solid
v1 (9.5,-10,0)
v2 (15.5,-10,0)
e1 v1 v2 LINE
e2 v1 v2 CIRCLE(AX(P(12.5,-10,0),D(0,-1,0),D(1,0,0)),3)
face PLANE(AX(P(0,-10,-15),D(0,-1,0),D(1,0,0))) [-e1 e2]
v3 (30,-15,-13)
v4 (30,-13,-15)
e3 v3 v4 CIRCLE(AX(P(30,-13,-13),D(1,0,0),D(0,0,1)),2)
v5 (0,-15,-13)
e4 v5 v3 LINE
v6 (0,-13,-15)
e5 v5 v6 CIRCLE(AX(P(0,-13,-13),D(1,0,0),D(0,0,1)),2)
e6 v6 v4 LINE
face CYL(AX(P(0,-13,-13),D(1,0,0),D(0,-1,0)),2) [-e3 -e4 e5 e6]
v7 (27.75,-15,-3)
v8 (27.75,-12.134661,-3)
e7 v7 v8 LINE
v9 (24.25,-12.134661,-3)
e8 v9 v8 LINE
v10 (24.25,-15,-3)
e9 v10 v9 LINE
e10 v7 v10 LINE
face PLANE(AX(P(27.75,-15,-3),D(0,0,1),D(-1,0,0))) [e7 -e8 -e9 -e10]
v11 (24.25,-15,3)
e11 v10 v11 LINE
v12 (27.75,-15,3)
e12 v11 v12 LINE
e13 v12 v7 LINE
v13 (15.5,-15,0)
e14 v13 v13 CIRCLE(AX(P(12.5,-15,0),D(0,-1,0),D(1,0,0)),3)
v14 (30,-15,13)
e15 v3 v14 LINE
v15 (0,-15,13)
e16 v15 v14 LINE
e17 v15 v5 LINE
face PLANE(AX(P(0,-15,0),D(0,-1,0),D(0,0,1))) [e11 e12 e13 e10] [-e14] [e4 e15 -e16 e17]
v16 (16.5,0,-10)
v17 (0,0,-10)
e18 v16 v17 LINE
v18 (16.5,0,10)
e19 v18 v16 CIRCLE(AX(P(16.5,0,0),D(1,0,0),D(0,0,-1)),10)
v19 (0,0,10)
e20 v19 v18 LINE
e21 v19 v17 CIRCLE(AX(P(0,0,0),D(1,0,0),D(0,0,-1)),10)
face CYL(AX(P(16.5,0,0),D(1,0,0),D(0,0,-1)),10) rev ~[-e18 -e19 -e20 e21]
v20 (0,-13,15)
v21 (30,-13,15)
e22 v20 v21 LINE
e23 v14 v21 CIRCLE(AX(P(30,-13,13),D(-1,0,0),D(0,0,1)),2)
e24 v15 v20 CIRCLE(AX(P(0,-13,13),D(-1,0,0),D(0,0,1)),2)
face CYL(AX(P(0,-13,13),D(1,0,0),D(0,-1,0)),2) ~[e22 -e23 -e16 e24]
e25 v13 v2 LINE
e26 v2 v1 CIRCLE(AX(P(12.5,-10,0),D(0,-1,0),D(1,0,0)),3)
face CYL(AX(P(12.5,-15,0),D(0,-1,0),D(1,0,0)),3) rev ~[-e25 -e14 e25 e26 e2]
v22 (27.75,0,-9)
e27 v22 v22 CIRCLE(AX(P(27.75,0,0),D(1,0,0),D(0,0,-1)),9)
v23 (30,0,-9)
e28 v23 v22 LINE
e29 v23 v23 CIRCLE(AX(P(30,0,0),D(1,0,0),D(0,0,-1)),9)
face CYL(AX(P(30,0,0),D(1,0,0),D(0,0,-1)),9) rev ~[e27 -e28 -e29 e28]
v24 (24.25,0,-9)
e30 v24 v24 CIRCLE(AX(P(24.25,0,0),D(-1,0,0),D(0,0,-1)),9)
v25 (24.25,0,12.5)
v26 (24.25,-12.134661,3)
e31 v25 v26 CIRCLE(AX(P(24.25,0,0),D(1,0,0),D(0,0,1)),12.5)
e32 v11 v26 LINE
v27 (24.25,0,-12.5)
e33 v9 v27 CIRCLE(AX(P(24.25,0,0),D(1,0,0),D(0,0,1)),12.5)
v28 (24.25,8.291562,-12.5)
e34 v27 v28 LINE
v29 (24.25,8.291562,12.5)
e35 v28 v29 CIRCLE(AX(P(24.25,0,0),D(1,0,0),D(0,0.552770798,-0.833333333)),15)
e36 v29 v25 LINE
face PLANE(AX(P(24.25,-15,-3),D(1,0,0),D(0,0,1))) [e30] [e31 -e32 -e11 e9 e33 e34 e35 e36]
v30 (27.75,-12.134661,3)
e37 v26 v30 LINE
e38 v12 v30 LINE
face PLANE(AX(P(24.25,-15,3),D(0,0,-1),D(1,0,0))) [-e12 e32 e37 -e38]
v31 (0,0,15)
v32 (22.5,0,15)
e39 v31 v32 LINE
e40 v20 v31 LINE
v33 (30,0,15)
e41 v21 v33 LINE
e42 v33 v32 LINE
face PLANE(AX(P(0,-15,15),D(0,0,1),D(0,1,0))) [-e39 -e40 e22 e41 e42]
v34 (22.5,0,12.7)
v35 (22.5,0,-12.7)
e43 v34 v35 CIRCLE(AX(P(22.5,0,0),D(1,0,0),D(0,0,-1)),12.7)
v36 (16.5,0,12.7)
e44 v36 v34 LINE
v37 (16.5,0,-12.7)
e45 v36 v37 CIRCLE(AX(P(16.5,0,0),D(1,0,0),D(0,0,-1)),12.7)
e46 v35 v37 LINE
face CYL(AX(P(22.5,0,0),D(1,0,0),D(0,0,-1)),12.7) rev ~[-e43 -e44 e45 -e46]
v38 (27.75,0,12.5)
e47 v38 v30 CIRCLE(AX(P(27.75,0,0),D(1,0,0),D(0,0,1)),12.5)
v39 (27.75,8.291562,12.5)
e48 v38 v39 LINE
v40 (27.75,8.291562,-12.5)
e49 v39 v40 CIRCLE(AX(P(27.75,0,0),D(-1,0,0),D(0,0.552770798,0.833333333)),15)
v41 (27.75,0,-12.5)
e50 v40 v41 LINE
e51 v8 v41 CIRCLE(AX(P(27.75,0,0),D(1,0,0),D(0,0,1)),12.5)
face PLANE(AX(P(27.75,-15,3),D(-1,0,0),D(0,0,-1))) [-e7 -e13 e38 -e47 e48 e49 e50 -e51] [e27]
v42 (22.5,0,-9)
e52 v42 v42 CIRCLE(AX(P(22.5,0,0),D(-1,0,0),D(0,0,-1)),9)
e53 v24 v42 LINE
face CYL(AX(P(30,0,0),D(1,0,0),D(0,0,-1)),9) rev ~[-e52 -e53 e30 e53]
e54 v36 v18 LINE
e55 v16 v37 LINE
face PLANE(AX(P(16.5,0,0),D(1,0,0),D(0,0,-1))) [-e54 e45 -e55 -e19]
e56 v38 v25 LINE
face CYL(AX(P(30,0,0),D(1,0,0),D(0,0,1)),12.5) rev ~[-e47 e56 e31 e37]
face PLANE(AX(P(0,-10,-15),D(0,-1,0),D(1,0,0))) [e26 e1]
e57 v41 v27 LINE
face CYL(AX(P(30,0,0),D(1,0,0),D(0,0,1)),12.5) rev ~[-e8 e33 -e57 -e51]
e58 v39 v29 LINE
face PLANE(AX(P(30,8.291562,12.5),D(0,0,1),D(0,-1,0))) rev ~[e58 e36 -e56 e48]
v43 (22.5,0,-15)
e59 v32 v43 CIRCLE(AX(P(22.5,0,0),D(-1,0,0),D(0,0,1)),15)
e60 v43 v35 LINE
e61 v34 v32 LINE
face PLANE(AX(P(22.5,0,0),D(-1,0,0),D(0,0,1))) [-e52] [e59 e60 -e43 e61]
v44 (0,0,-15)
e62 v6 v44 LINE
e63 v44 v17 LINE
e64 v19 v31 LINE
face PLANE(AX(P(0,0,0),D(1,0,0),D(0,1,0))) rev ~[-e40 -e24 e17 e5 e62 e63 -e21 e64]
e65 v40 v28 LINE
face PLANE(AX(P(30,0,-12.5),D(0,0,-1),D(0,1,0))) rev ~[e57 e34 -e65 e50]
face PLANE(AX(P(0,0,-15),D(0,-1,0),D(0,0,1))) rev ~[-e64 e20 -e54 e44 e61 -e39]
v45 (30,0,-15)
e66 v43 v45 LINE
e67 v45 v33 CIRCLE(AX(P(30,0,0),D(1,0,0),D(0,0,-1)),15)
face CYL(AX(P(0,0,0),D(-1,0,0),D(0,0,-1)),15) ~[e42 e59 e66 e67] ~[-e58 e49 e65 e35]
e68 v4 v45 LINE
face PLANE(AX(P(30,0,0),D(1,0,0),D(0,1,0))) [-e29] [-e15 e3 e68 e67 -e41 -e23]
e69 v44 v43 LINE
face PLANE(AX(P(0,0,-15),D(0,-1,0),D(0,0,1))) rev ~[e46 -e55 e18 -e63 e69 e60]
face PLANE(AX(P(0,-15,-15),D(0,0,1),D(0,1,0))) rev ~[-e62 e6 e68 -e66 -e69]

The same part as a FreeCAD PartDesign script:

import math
import FreeCAD as App
import Part
import Sketcher


def edges_at(feature, points):
    """Names of the edges that pass closest to the given points."""
    edges = feature.Shape.Edges
    near = lambda p: min(range(len(edges)), key=lambda i: edges[i].distToShape(Part.Vertex(*p))[0])
    return sorted({f"Edge{near(p) + 1}" for p in points})


def add_polygon(sketch, points):
    """Adds a closed chain of lines whose ends are joined by coincident constraints."""
    first, n = sketch.GeometryCount, len(points)
    for a, b in zip(points, points[1:] + points[:1]):
        sketch.addGeometry(Part.LineSegment(App.Vector(*a, 0), App.Vector(*b, 0)), False)
    for i in range(n):
        sketch.addConstraint(Sketcher.Constraint("Coincident", first + i, 2, first + (i + 1) % n, 1))

doc = App.newDocument("Part")
body = doc.addObject("PartDesign::Body", "Body")

# Sketch on YZ plane
sketch1 = body.newObject("Sketcher::SketchObject", "Sketch")
sketch1.AttachmentSupport = (doc.getObject("YZ_Plane"), [""])
sketch1.MapMode = "FlatFace"
sketch1.addGeometry(Part.LineSegment(App.Vector(-15, 15, 0), App.Vector(-15, -15, 0)), False)
sketch1.addGeometry(Part.LineSegment(App.Vector(-15, -15, 0), App.Vector(0, -15, 0)), False)
sketch1.addGeometry(Part.ArcOfCircle(Part.Circle(App.Vector(0, 0, 0), App.Vector(0, 0, 1), 15), math.radians(-90), math.radians(90)), False)
sketch1.addGeometry(Part.LineSegment(App.Vector(0, 15, 0), App.Vector(-15, 15, 0)), False)
sketch1.addConstraint(Sketcher.Constraint("Coincident", 0, 2, 1, 1))
sketch1.addConstraint(Sketcher.Constraint("Tangent", 1, 2, 2, 1))
sketch1.addConstraint(Sketcher.Constraint("Tangent", 2, 2, 3, 1))
sketch1.addConstraint(Sketcher.Constraint("Coincident", 3, 2, 0, 1))
sketch1.addConstraint(Sketcher.Constraint("Vertical", 0))
sketch1.addConstraint(Sketcher.Constraint("Horizontal", 1))
sketch1.addConstraint(Sketcher.Constraint("Horizontal", 3))
sketch1.addConstraint(Sketcher.Constraint("Coincident", 2, 3, -1, 1))
sketch1.addConstraint(Sketcher.Constraint("Radius", 2, 15.0))
sketch1.addConstraint(Sketcher.Constraint("DistanceX", 1, 1, 1, 2, 15.0))
pad1 = body.newObject("PartDesign::Pad", "Pad")
pad1.Profile = sketch1
pad1.Length = 30

# Sketch on YZ plane
sketch2 = body.newObject("Sketcher::SketchObject", "Sketch001")
sketch2.AttachmentSupport = (doc.getObject("YZ_Plane"), [""])
sketch2.MapMode = "FlatFace"
sketch2.AttachmentOffset = App.Placement(App.Vector(0, 0, 30), App.Rotation())
sketch2.addGeometry(Part.Circle(App.Vector(0, 0, 0), App.Vector(0, 0, 1), 9), False)
sketch2.addConstraint(Sketcher.Constraint("Coincident", 0, 3, -1, 1))
sketch2.addConstraint(Sketcher.Constraint("Diameter", 0, 18.0))
pocket1 = body.newObject("PartDesign::Pocket", "Pocket")
pocket1.Profile = sketch2
pocket1.Length = 7.5

# Sketch on YZ plane
sketch3 = body.newObject("Sketcher::SketchObject", "Sketch002")
sketch3.AttachmentSupport = (doc.getObject("YZ_Plane"), [""])
sketch3.MapMode = "FlatFace"
sketch3.AttachmentOffset = App.Placement(App.Vector(0, 0, 22.5), App.Rotation())
sketch3.addGeometry(Part.Circle(App.Vector(0, 0, 0), App.Vector(0, 0, 1), 12.7), False)
sketch3.addConstraint(Sketcher.Constraint("Coincident", 0, 3, -1, 1))
sketch3.addConstraint(Sketcher.Constraint("Diameter", 0, 25.4))
pocket2 = body.newObject("PartDesign::Pocket", "Pocket001")
pocket2.Profile = sketch3
pocket2.Length = 6

# Sketch on YZ plane
sketch4 = body.newObject("Sketcher::SketchObject", "Sketch003")
sketch4.AttachmentSupport = (doc.getObject("YZ_Plane"), [""])
sketch4.MapMode = "FlatFace"
sketch4.AttachmentOffset = App.Placement(App.Vector(0, 0, 16.5), App.Rotation())
sketch4.addGeometry(Part.Circle(App.Vector(0, 0, 0), App.Vector(0, 0, 1), 10), False)
sketch4.addConstraint(Sketcher.Constraint("Coincident", 0, 3, -1, 1))
sketch4.addConstraint(Sketcher.Constraint("Diameter", 0, 20.0))
pocket3 = body.newObject("PartDesign::Pocket", "Pocket002")
pocket3.Profile = sketch4
pocket3.Type = "ThroughAll"

# Sketch on YZ plane
sketch5 = body.newObject("Sketcher::SketchObject", "Sketch004")
sketch5.AttachmentSupport = (doc.getObject("YZ_Plane"), [""])
sketch5.MapMode = "FlatFace"
sketch5.addGeometry(Part.LineSegment(App.Vector(0, -15, 0), App.Vector(0, 15, 0)), False)
sketch5.addGeometry(Part.ArcOfCircle(Part.Circle(App.Vector(0, 0, 0), App.Vector(0, 0, 1), 15), math.radians(-90), math.radians(90)), False)
sketch5.addConstraint(Sketcher.Constraint("Coincident", 0, 1, 1, 1))
sketch5.addConstraint(Sketcher.Constraint("Coincident", 1, 2, 0, 2))
sketch5.addConstraint(Sketcher.Constraint("Vertical", 0))
sketch5.addConstraint(Sketcher.Constraint("Coincident", 1, 3, -1, 1))
sketch5.addConstraint(Sketcher.Constraint("PointOnObject", 0, 1, -2))
sketch5.addConstraint(Sketcher.Constraint("Radius", 1, 15.0))
pocket4 = body.newObject("PartDesign::Pocket", "Pocket003")
pocket4.Profile = sketch5
pocket4.Length = 22.5
pocket4.Reversed = True

# Sketch on YZ plane
sketch6 = body.newObject("Sketcher::SketchObject", "Sketch005")
sketch6.AttachmentSupport = (doc.getObject("YZ_Plane"), [""])
sketch6.MapMode = "FlatFace"
sketch6.AttachmentOffset = App.Placement(App.Vector(0, 0, 30), App.Rotation())
sketch6.addGeometry(Part.ArcOfCircle(Part.Circle(App.Vector(0, 0, 0), App.Vector(0, 0, 1), 12.5), math.radians(90), math.radians(270)), False)
sketch6.addGeometry(Part.LineSegment(App.Vector(0, -12.5, 0), App.Vector(8.291562, -12.5, 0)), False)
sketch6.addGeometry(Part.ArcOfCircle(Part.Circle(App.Vector(0, 0, 0), App.Vector(0, 0, 1), 15), math.radians(-56.44269), math.radians(56.44269)), False)
sketch6.addGeometry(Part.LineSegment(App.Vector(8.291562, 12.5, 0), App.Vector(0, 12.5, 0)), False)
sketch6.addConstraint(Sketcher.Constraint("Tangent", 0, 2, 1, 1))
sketch6.addConstraint(Sketcher.Constraint("Coincident", 1, 2, 2, 1))
sketch6.addConstraint(Sketcher.Constraint("Coincident", 2, 2, 3, 1))
sketch6.addConstraint(Sketcher.Constraint("Tangent", 3, 2, 0, 1))
sketch6.addConstraint(Sketcher.Constraint("Horizontal", 1))
sketch6.addConstraint(Sketcher.Constraint("Horizontal", 3))
sketch6.addConstraint(Sketcher.Constraint("Coincident", 0, 3, -1, 1))
sketch6.addConstraint(Sketcher.Constraint("Coincident", 2, 3, -1, 1))
sketch6.addConstraint(Sketcher.Constraint("Radius", 0, 12.5))
sketch6.addConstraint(Sketcher.Constraint("Radius", 2, 15.0))
pocket5 = body.newObject("PartDesign::Pocket", "Pocket004")
pocket5.Profile = sketch6
pocket5.Length = 5.75

# Sketch on YZ plane
sketch7 = body.newObject("Sketcher::SketchObject", "Sketch006")
sketch7.AttachmentSupport = (doc.getObject("YZ_Plane"), [""])
sketch7.MapMode = "FlatFace"
sketch7.AttachmentOffset = App.Placement(App.Vector(0, 0, 30), App.Rotation())
sketch7.addGeometry(Part.ArcOfCircle(Part.Circle(App.Vector(0, 0, 0), App.Vector(0, 0, 1), 12.5), math.radians(90), math.radians(270)), False)
sketch7.addGeometry(Part.LineSegment(App.Vector(0, -12.5, 0), App.Vector(0, -15, 0)), False)
sketch7.addGeometry(Part.ArcOfCircle(Part.Circle(App.Vector(0, 0, 0), App.Vector(0, 0, 1), 15), math.radians(-90), math.radians(90)), False)
sketch7.addGeometry(Part.LineSegment(App.Vector(0, 15, 0), App.Vector(0, 12.5, 0)), False)
sketch7.addConstraint(Sketcher.Constraint("Coincident", 0, 2, 1, 1))
sketch7.addConstraint(Sketcher.Constraint("Coincident", 1, 2, 2, 1))
sketch7.addConstraint(Sketcher.Constraint("Coincident", 2, 2, 3, 1))
sketch7.addConstraint(Sketcher.Constraint("Coincident", 3, 2, 0, 1))
sketch7.addConstraint(Sketcher.Constraint("Vertical", 1))
sketch7.addConstraint(Sketcher.Constraint("Vertical", 3))
sketch7.addConstraint(Sketcher.Constraint("Coincident", 0, 3, -1, 1))
sketch7.addConstraint(Sketcher.Constraint("Coincident", 2, 3, -1, 1))
sketch7.addConstraint(Sketcher.Constraint("PointOnObject", 0, 2, -2))
sketch7.addConstraint(Sketcher.Constraint("PointOnObject", 2, 2, -2))
sketch7.addConstraint(Sketcher.Constraint("Radius", 2, 15.0))
sketch7.addConstraint(Sketcher.Constraint("Radius", 0, 12.5))
pad2 = body.newObject("PartDesign::Pad", "Pad001")
pad2.Profile = sketch7
pad2.Length = 2.25
pad2.Reversed = True

# Sketch on YZ plane
sketch8 = body.newObject("Sketcher::SketchObject", "Sketch007")
sketch8.AttachmentSupport = (doc.getObject("YZ_Plane"), [""])
sketch8.MapMode = "FlatFace"
sketch8.AttachmentOffset = App.Placement(App.Vector(0, 0, 30), App.Rotation())
sketch8.addGeometry(Part.Circle(App.Vector(0, 0, 0), App.Vector(0, 0, 1), 9), False)
sketch8.addConstraint(Sketcher.Constraint("Coincident", 0, 3, -1, 1))
sketch8.addConstraint(Sketcher.Constraint("Diameter", 0, 18.0))
pocket6 = body.newObject("PartDesign::Pocket", "Pocket005")
pocket6.Profile = sketch8
pocket6.Type = "ThroughAll"

# Sketch on XZ plane
sketch9 = body.newObject("Sketcher::SketchObject", "Sketch008")
sketch9.AttachmentSupport = (doc.getObject("XZ_Plane"), [""])
sketch9.MapMode = "FlatFace"
sketch9.AttachmentOffset = App.Placement(App.Vector(0, 0, 15), App.Rotation())
add_polygon(sketch9, [(24.25, -3), (27.75, -3), (27.75, 3), (24.25, 3)])  # lines 0-3
sketch9.addConstraint(Sketcher.Constraint("Horizontal", 0))
sketch9.addConstraint(Sketcher.Constraint("Vertical", 1))
sketch9.addConstraint(Sketcher.Constraint("Horizontal", 2))
sketch9.addConstraint(Sketcher.Constraint("Vertical", 3))
sketch9.addConstraint(Sketcher.Constraint("DistanceY", 1, 1, 1, 2, 6.0))
sketch9.addConstraint(Sketcher.Constraint("DistanceX", 0, 1, 0, 2, 3.5))
sketch9.addConstraint(Sketcher.Constraint("DistanceY", 0, 2, -1, 1, 3.0))
sketch9.addConstraint(Sketcher.Constraint("DistanceX", -1, 1, 0, 2, 27.75))
pocket7 = body.newObject("PartDesign::Pocket", "Pocket006")
pocket7.Profile = sketch9
pocket7.Type = "ThroughAll"

# Sketch on XZ plane
sketch10 = body.newObject("Sketcher::SketchObject", "Sketch009")
sketch10.AttachmentSupport = (doc.getObject("XZ_Plane"), [""])
sketch10.MapMode = "FlatFace"
sketch10.AttachmentOffset = App.Placement(App.Vector(0, 0, 15), App.Rotation())
sketch10.addGeometry(Part.Circle(App.Vector(12.5, 0, 0), App.Vector(0, 0, 1), 3), False)
sketch10.addConstraint(Sketcher.Constraint("PointOnObject", 0, 3, -1))
sketch10.addConstraint(Sketcher.Constraint("Diameter", 0, 6.0))
sketch10.addConstraint(Sketcher.Constraint("DistanceX", -1, 1, 0, 3, 12.5))
pocket8 = body.newObject("PartDesign::Pocket", "Pocket007")
pocket8.Profile = sketch10
pocket8.Length = 5
doc.recompute()

fillet = body.newObject("PartDesign::Fillet", "Fillet")
fillet.Base = (pocket8, edges_at(pocket8, [(15, -15, -15), (15, -15, 15)]))
fillet.Radius = 2

doc.recompute()
